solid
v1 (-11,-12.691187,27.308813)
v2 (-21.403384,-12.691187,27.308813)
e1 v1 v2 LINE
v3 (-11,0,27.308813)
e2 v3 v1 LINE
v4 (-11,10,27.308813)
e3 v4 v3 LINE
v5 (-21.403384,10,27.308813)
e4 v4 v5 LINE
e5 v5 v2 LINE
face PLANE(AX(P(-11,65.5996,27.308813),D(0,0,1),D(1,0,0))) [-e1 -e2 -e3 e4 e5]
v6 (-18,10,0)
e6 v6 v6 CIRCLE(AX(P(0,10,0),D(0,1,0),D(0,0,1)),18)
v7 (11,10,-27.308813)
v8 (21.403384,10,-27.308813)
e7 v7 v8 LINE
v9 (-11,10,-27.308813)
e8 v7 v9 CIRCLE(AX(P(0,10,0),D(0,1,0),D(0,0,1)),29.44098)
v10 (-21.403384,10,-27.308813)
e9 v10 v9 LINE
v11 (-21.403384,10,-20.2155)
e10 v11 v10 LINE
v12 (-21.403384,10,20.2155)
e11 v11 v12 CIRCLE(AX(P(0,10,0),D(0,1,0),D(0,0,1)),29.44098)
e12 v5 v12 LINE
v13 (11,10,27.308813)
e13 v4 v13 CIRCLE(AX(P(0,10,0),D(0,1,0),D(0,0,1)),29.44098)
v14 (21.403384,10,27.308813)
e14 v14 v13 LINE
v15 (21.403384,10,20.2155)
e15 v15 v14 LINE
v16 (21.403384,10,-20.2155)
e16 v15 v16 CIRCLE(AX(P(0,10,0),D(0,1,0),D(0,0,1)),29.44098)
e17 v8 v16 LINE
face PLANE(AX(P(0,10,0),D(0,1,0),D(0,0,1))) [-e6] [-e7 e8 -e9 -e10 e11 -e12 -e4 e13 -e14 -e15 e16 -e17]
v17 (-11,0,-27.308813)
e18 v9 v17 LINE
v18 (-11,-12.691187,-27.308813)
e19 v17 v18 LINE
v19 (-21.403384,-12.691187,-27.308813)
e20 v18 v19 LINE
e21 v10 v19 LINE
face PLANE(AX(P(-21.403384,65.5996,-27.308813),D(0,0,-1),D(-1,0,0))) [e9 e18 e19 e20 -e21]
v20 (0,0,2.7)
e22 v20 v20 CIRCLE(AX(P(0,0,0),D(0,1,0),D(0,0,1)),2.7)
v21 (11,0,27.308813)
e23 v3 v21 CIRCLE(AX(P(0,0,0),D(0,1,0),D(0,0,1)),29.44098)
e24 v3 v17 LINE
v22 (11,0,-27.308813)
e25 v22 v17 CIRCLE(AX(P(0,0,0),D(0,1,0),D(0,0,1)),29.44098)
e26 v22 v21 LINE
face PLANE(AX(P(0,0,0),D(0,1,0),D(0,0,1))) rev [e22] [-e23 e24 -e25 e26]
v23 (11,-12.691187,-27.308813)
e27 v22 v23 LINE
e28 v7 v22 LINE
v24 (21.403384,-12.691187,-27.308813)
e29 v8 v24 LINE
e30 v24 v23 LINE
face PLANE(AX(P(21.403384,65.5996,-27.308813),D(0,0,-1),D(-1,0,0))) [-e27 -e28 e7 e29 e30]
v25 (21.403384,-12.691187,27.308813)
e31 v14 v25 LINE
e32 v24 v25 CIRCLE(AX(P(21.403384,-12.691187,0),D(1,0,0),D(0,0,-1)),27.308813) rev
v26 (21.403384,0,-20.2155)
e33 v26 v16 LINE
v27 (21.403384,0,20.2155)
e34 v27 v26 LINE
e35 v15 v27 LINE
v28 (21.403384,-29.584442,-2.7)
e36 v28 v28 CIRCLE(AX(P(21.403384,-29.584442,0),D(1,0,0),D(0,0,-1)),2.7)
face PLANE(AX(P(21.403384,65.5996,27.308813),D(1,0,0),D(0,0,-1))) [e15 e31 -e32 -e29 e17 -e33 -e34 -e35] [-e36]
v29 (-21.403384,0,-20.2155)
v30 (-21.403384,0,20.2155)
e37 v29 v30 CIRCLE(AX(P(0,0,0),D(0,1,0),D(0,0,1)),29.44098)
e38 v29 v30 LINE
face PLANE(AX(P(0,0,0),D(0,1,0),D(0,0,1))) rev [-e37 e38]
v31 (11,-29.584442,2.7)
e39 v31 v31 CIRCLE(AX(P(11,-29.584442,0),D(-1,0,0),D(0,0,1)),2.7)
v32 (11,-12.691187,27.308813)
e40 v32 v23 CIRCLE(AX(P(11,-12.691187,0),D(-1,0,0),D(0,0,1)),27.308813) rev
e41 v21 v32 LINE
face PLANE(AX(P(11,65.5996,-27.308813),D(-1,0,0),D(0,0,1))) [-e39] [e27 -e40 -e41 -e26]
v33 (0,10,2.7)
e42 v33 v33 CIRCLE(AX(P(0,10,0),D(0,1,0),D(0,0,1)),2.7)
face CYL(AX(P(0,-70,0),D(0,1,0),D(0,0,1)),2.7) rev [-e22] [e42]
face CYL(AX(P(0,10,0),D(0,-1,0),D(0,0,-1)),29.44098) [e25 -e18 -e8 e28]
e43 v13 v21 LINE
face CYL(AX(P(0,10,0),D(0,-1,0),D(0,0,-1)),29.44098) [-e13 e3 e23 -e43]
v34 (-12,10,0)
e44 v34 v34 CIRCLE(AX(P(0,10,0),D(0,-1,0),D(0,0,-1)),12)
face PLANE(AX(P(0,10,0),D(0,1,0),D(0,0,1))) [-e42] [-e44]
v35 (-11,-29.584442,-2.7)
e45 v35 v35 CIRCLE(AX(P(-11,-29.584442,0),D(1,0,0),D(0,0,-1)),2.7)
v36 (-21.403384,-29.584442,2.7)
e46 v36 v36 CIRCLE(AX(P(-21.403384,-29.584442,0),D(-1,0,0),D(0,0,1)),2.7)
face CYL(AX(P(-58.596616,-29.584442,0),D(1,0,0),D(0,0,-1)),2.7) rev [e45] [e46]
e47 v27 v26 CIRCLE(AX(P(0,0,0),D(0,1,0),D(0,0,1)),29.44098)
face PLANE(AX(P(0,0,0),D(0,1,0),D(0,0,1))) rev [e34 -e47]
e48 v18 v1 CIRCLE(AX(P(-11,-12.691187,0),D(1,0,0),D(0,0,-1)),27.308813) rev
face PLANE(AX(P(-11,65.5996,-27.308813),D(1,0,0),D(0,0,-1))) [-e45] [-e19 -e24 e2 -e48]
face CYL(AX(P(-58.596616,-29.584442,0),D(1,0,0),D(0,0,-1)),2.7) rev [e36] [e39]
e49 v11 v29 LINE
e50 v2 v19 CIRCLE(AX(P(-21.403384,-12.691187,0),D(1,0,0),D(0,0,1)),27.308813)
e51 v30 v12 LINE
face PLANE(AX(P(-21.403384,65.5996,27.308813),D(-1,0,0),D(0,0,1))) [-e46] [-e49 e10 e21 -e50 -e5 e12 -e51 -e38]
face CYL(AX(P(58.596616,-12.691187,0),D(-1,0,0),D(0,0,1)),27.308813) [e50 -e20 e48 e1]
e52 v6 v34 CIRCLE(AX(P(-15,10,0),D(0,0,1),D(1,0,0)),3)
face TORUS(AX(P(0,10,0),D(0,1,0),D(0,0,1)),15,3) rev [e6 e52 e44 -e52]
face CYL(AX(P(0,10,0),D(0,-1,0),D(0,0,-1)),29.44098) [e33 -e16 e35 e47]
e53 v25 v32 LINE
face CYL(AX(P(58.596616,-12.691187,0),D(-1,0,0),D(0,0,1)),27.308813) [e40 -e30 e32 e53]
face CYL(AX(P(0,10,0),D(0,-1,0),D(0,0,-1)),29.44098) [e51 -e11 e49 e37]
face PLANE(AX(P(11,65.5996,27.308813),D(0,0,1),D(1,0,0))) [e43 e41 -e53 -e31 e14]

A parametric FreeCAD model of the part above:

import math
import FreeCAD as App
import Part
import Sketcher
from FreeCAD import Vector
Q = App.Units.Quantity


def add_polygon(sketch, points):
    """Adds a closed chain of lines whose ends are joined by coincident constraints."""
    first, n = sketch.GeometryCount, len(points)
    for a, b in zip(points, points[1:] + points[:1]):
        sketch.addGeometry(Part.LineSegment(App.Vector(*a, 0), App.Vector(*b, 0)), False)
    for i in range(n):
        sketch.addConstraint(Sketcher.Constraint("Coincident", first + i, 2, first + (i + 1) % n, 1))

doc = App.newDocument("Part")
body = doc.addObject("PartDesign::Body", "Body")

# Sketch on XZ plane
sketch1 = doc.addObject("Sketcher::SketchObject", "Sketch")
body.addObject(sketch1)
sketch1.AttachmentSupport = (doc.XZ_Plane, [""])
sketch1.MapMode = "FlatFace"
sketch1.addGeometry(Part.Circle(Vector(0, 0, 0), Vector(0, 0, 1), 29), False)
sketch1.addConstraint(Sketcher.Constraint("Coincident", 0, 3, -1, 1))
sketch1.addConstraint(Sketcher.Constraint("Diameter", 0, Q("58.881959 mm")))
pad1 = doc.addObject("PartDesign::Pad", "Pad")
body.addObject(pad1)
pad1.Profile = sketch1
pad1.Length = 10
pad1.Reversed = True

# Sketch on XZ plane
sketch2 = doc.addObject("Sketcher::SketchObject", "Sketch001")
body.addObject(sketch2)
sketch2.AttachmentSupport = (doc.XZ_Plane, [""])
sketch2.MapMode = "FlatFace"
add_polygon(sketch2, [(-21, 27), (-21, -27), (-11, -27), (-11, 27)])  # lines 0-3
add_polygon(sketch2, [(11, 27), (11, -27), (21, -27), (21, 27)])  # lines 4-7
sketch2.addConstraint(Sketcher.Constraint("Vertical", 0))
sketch2.addConstraint(Sketcher.Constraint("Horizontal", 1))
sketch2.addConstraint(Sketcher.Constraint("Vertical", 2))
sketch2.addConstraint(Sketcher.Constraint("Horizontal", 3))
sketch2.addConstraint(Sketcher.Constraint("Vertical", 4))
sketch2.addConstraint(Sketcher.Constraint("Horizontal", 5))
sketch2.addConstraint(Sketcher.Constraint("Vertical", 6))
sketch2.addConstraint(Sketcher.Constraint("Horizontal", 7))
sketch2.addConstraint(Sketcher.Constraint("Symmetric", 2, 2, 4, 2, -1, 1))
sketch2.addConstraint(Sketcher.Constraint("Symmetric", 0, 2, 6, 2, -1, 1))
sketch2.addConstraint(Sketcher.Constraint("Horizontal", 1, 2, 4, 2))
sketch2.addConstraint(Sketcher.Constraint("DistanceX", 1, 2, -1, 1, Q("11 mm")))
sketch2.addConstraint(Sketcher.Constraint("DistanceX", 1, 1, 1, 2, Q("10.403384 mm")))
sketch2.addConstraint(Sketcher.Constraint("DistanceY", 0, 2, 0, 1, Q("54.617627 mm")))
pad2 = doc.addObject("PartDesign::Pad", "Pad001")
body.addObject(pad2)
pad2.Profile = sketch2
pad2.Type = "TwoLengths"
pad2.Length = 40
pad2.Length2 = 10

# Sketch on YZ plane
sketch3 = doc.addObject("Sketcher::SketchObject", "Sketch002")
body.addObject(sketch3)
sketch3.AttachmentSupport = (doc.YZ_Plane, [""])
sketch3.MapMode = "FlatFace"
sketch3.AttachmentOffset = App.Placement(Vector(0, 0, 21.403384), App.Rotation())
sketch3.addGeometry(Part.Circle(Vector(-29.6, 0, 0), Vector(0, 0, 1), 2.7), False)
sketch3.addConstraint(Sketcher.Constraint("PointOnObject", 0, 3, -1))
sketch3.addConstraint(Sketcher.Constraint("Diameter", 0, Q("5.4 mm")))
sketch3.addConstraint(Sketcher.Constraint("DistanceX", 0, 3, -1, 1, Q("29.584442 mm")))
pocket1 = doc.addObject("PartDesign::Pocket", "Pocket")
body.addObject(pocket1)
pocket1.Profile = sketch3
pocket1.Length = 80

# Sketch on XZ plane
sketch4 = doc.addObject("Sketcher::SketchObject", "Sketch003")
body.addObject(sketch4)
sketch4.AttachmentSupport = (doc.XZ_Plane, [""])
sketch4.MapMode = "FlatFace"
sketch4.AttachmentOffset = App.Placement(Vector(0, 0, -10), App.Rotation())
sketch4.addGeometry(Part.Circle(Vector(0, 0, 0), Vector(0, 0, 1), 2.7), False)
sketch4.addConstraint(Sketcher.Constraint("Coincident", 0, 3, -1, 1))
sketch4.addConstraint(Sketcher.Constraint("Diameter", 0, Q("5.4 mm")))
pocket2 = doc.addObject("PartDesign::Pocket", "Pocket001")
body.addObject(pocket2)
pocket2.Profile = sketch4
pocket2.Type = "ThroughAll"
pocket2.Midplane = True

# Sketch on XY plane
sketch5 = doc.addObject("Sketcher::SketchObject", "Sketch004")
body.addObject(sketch5)
sketch5.AttachmentSupport = (doc.XY_Plane, [""])
sketch5.MapMode = "FlatFace"
sketch5.addGeometry(Part.Circle(Vector(-15, 10, 0), Vector(0, 0, 1), 3), False)
sketch5.addConstraint(Sketcher.Constraint("Diameter", 0, Q("6 mm")))
sketch5.addConstraint(Sketcher.Constraint("DistanceX", 0, 3, -1, 1, Q("15 mm")))
sketch5.addConstraint(Sketcher.Constraint("DistanceY", -1, 1, 0, 3, Q("10 mm")))

# Sketch on XZ plane
sketch6 = doc.addObject("Sketcher::SketchObject", "Sketch005")
body.addObject(sketch6)
sketch6.AttachmentSupport = (doc.XZ_Plane, [""])
sketch6.MapMode = "FlatFace"
sketch6.AttachmentOffset = App.Placement(Vector(0, 0, -10), App.Rotation())
sketch6.addGeometry(Part.Circle(Vector(0, 0, 0), Vector(0, 0, 1), 15), False)
sketch6.addConstraint(Sketcher.Constraint("Coincident", 0, 3, -1, 1))
sketch6.addConstraint(Sketcher.Constraint("Diameter", 0, Q("30 mm")))
doc.recompute()

subtractivepipe = doc.addObject("PartDesign::SubtractivePipe", "SubtractivePipe")
body.addObject(subtractivepipe)
subtractivepipe.Profile = sketch5
subtractivepipe.Spine = (sketch6, ["Edge1"])

# Sketch on YZ plane
sketch7 = doc.addObject("Sketcher::SketchObject", "Sketch006")
body.addObject(sketch7)
sketch7.AttachmentSupport = (doc.YZ_Plane, [""])
sketch7.MapMode = "FlatFace"
sketch7.AttachmentOffset = App.Placement(Vector(0, 0, -21.403384), App.Rotation())
sketch7.addGeometry(Part.LineSegment(Vector(-12.7, -27.3, 0), Vector(-12.7, -33.6, 0)), False)
sketch7.addGeometry(Part.LineSegment(Vector(-12.7, -33.6, 0), Vector(-51.9, -33.6, 0)), False)
sketch7.addGeometry(Part.LineSegment(Vector(-51.9, -33.6, 0), Vector(-51.9, 31.5, 0)), False)
sketch7.addGeometry(Part.LineSegment(Vector(-51.9, 31.5, 0), Vector(-12.7, 31.5, 0)), False)
sketch7.addGeometry(Part.LineSegment(Vector(-12.7, 31.5, 0), Vector(-12.7, 27.3, 0)), False)
sketch7.addGeometry(Part.ArcOfCircle(Part.Circle(Vector(-12.7, 0, 0), Vector(0, 0, 1), 27.3), math.radians(90), math.radians(270)), False)
sketch7.addConstraint(Sketcher.Constraint("Coincident", 0, 2, 1, 1))
sketch7.addConstraint(Sketcher.Constraint("Coincident", 1, 2, 2, 1))
sketch7.addConstraint(Sketcher.Constraint("Coincident", 2, 2, 3, 1))
sketch7.addConstraint(Sketcher.Constraint("Coincident", 3, 2, 4, 1))
sketch7.addConstraint(Sketcher.Constraint("Coincident", 4, 2, 5, 1))
sketch7.addConstraint(Sketcher.Constraint("Coincident", 5, 2, 0, 1))
sketch7.addConstraint(Sketcher.Constraint("Vertical", 0))
sketch7.addConstraint(Sketcher.Constraint("Horizontal", 1))
sketch7.addConstraint(Sketcher.Constraint("Vertical", 2))
sketch7.addConstraint(Sketcher.Constraint("Horizontal", 3))
sketch7.addConstraint(Sketcher.Constraint("Vertical", 4))
sketch7.addConstraint(Sketcher.Constraint("Symmetric", 4, 2, 5, 2, -1))
sketch7.addConstraint(Sketcher.Constraint("Vertical", 5, 3, 0, 2))
sketch7.addConstraint(Sketcher.Constraint("Radius", 5, Q("27.308813 mm")))
sketch7.addConstraint(Sketcher.Constraint("DistanceY", 2, 1, 2, 2, Q("65.10606 mm")))
sketch7.addConstraint(Sketcher.Constraint("DistanceX", 1, 2, 1, 1, Q("39.168477 mm")))
sketch7.addConstraint(Sketcher.Constraint("DistanceY", 0, 2, 0, 1, Q("6.251427 mm")))
sketch7.addConstraint(Sketcher.Constraint("DistanceX", 5, 3, -1, 1, Q("12.691187 mm")))
pocket3 = doc.addObject("PartDesign::Pocket", "Pocket002")
body.addObject(pocket3)
pocket3.Profile = sketch7
pocket3.Length = 80
pocket3.Reversed = True

doc.recompute()
